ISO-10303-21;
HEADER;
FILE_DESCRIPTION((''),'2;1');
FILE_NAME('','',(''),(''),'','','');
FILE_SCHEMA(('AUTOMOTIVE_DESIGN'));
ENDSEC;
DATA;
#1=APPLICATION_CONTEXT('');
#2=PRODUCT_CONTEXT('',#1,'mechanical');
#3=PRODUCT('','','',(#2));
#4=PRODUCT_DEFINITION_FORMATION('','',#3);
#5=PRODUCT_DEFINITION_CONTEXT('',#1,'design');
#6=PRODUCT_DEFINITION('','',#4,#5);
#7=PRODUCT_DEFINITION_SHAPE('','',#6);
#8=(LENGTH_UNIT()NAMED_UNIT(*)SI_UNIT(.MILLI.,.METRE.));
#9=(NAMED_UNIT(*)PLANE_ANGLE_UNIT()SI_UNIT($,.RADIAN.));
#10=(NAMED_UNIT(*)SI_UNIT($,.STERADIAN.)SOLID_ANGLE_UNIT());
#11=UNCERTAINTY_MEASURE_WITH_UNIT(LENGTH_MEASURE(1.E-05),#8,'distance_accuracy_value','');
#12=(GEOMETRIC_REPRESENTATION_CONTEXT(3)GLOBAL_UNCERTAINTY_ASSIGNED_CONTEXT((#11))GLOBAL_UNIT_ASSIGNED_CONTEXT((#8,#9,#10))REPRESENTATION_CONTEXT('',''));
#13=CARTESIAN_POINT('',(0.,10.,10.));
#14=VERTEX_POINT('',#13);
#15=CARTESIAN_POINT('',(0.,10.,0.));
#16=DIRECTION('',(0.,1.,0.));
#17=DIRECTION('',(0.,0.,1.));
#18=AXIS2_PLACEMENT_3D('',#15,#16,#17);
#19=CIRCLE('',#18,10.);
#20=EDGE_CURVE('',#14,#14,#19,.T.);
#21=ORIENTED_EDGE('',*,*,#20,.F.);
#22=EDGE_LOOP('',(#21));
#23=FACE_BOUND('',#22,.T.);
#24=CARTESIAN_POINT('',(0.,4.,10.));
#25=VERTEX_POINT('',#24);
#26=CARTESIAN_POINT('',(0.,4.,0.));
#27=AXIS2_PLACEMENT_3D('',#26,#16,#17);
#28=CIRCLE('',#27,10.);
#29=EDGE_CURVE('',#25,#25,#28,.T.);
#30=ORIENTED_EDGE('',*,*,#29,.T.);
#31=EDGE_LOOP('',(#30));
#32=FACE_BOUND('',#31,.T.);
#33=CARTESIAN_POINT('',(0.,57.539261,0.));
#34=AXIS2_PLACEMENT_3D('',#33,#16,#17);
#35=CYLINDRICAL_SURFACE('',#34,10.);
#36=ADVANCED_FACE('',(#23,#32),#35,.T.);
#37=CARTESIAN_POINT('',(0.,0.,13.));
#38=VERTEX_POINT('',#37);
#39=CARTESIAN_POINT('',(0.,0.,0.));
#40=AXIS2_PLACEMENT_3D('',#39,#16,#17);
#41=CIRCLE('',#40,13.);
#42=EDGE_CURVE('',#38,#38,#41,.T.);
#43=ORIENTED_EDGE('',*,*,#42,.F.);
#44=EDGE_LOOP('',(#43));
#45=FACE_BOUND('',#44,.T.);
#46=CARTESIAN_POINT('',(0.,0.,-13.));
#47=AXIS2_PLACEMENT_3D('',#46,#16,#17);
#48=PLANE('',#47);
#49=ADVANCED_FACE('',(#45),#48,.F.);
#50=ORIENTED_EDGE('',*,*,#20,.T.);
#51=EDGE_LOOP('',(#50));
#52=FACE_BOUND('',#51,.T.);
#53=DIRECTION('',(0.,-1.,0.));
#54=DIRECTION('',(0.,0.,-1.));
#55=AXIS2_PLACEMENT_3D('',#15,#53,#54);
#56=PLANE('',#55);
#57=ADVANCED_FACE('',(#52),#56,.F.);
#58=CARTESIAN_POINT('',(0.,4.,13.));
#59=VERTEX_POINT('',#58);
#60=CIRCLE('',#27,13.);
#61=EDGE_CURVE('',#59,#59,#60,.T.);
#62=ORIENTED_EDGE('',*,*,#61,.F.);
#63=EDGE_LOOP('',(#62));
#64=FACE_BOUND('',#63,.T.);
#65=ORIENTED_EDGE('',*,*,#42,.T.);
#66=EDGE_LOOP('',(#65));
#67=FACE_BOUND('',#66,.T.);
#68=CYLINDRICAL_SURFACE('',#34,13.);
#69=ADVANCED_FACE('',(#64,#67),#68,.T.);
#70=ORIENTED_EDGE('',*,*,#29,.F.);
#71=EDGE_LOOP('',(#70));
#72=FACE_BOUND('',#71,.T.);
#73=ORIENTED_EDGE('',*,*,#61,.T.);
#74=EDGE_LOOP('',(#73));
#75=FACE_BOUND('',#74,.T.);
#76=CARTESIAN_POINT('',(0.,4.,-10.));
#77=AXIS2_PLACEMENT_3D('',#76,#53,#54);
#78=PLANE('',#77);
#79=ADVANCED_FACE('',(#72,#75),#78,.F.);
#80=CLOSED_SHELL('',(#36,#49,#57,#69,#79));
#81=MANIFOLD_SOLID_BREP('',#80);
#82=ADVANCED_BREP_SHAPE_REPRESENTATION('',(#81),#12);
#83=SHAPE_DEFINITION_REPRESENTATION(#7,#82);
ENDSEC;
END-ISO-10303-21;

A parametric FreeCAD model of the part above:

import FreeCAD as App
import Part
import Sketcher
from FreeCAD import Vector
Q = App.Units.Quantity


def add_polygon(sketch, points):
    """Adds a closed chain of lines whose ends are joined by coincident constraints."""
    first, n = sketch.GeometryCount, len(points)
    for a, b in zip(points, points[1:] + points[:1]):
        sketch.addGeometry(Part.LineSegment(App.Vector(*a, 0), App.Vector(*b, 0)), False)
    for i in range(n):
        sketch.addConstraint(Sketcher.Constraint("Coincident", first + i, 2, first + (i + 1) % n, 1))

doc = App.newDocument("Part")
params = doc.addObject("Spreadsheet::Sheet", "Params")
for row, (alias, value) in enumerate([
    ("sketch1_width", "10 mm"),
    ("sketch1_width2", "4 mm"),
    ("sketch1_height", "13 mm"),
    ("revolution_angle", "360 deg"),
], start=1):
    params.set(f"A{row}", alias)
    params.set(f"B{row}", "=" + value)
    params.setAlias(f"B{row}", alias)

body = doc.addObject("PartDesign::Body", "Body")

sketch1 = body.newObject("Sketcher::SketchObject", "Sketch")
sketch1.AttachmentSupport = (doc.getObject("YZ_Plane"), [""])
sketch1.MapMode = "FlatFace"
add_polygon(sketch1, [(10, -10), (10, 0), (0, 0), (0, -13), (4, -13), (4, -10)])
sketch1.addConstraint([
    Sketcher.Constraint("Vertical", 0),
    Sketcher.Constraint("Horizontal", 1),
    Sketcher.Constraint("Vertical", 2),
    Sketcher.Constraint("Horizontal", 3),
    Sketcher.Constraint("Vertical", 4),
    Sketcher.Constraint("Horizontal", 5),
    Sketcher.Constraint("Coincident", 1, 2, -1, 1),
    Sketcher.Constraint("Equal", 1, 0),
    Sketcher.Constraint("DistanceX", 1, 2, 1, 1, Q("10 mm")),
    Sketcher.Constraint("DistanceX", 3, 1, 3, 2, Q("4 mm")),
    Sketcher.Constraint("DistanceY", 2, 2, 2, 1, Q("13 mm")),
])
sketch1.setExpression("Constraints[14]", "Params.sketch1_width")
sketch1.setExpression("Constraints[15]", "Params.sketch1_width2")
sketch1.setExpression("Constraints[16]", "Params.sketch1_height")
revolution = body.newObject("PartDesign::Revolution", "Revolution")
revolution.Profile = sketch1
revolution.ReferenceAxis = (sketch1, ["H_Axis"])
revolution.setExpression("Angle", "Params.revolution_angle")

doc.recompute()
